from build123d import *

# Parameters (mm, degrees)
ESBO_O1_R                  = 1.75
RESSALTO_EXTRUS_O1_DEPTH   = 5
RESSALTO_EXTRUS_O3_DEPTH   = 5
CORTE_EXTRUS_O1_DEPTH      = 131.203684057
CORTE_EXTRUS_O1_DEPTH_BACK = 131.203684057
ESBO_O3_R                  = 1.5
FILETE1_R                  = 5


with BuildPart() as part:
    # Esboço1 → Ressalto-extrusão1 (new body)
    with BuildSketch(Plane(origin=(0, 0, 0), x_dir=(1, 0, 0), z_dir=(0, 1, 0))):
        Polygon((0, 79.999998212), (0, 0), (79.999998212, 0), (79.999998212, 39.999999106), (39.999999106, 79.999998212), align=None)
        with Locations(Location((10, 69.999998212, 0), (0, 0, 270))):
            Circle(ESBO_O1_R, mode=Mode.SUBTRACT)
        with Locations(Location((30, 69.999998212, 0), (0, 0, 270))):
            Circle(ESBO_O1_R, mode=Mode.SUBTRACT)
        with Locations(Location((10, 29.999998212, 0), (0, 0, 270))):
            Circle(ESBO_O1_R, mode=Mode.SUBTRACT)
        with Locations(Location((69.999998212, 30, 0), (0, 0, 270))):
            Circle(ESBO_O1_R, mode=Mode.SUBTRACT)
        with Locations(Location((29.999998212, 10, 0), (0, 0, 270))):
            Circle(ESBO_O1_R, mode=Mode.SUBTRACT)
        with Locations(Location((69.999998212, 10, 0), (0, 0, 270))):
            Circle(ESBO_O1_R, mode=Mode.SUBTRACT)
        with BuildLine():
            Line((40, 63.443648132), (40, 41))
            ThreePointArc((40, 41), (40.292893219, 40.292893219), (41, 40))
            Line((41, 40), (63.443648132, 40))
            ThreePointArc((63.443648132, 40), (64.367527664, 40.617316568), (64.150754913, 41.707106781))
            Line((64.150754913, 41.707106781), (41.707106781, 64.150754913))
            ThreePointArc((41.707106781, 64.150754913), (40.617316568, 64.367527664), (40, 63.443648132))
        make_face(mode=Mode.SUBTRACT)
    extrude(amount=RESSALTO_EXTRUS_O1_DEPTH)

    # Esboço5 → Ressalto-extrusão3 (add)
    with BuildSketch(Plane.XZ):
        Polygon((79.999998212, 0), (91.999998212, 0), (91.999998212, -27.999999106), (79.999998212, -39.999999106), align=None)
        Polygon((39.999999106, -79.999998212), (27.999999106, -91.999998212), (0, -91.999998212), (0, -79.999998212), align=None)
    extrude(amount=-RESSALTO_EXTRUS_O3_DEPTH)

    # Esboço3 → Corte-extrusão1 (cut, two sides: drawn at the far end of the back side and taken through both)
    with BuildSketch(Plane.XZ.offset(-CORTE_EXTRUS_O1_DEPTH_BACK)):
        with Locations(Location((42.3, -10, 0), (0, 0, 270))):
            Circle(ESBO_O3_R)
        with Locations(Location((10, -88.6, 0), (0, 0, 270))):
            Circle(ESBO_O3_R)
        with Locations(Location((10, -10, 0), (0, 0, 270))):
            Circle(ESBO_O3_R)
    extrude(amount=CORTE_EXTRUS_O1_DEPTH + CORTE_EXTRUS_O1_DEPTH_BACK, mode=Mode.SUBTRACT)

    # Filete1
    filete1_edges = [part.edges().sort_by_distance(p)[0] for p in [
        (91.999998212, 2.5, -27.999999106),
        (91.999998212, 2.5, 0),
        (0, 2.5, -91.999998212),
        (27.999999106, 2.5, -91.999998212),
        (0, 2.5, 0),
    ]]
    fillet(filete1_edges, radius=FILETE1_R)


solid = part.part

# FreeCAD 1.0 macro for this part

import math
import FreeCAD as App
import Part
import Sketcher

V = App.Vector


def edges_at(feature, points):
    """Names of the edges that pass closest to the given points."""
    edges = feature.Shape.Edges
    near = lambda p: min(range(len(edges)), key=lambda i: edges[i].distToShape(Part.Vertex(*p))[0])
    return sorted({f"Edge{near(p) + 1}" for p in points})


def add_polygon(sketch, points):
    """Adds a closed chain of lines whose ends are joined by coincident constraints."""
    first, n = sketch.GeometryCount, len(points)
    for a, b in zip(points, points[1:] + points[:1]):
        sketch.addGeometry(Part.LineSegment(App.Vector(*a, 0), App.Vector(*b, 0)), False)
    for i in range(n):
        sketch.addConstraint(Sketcher.Constraint("Coincident", first + i, 2, first + (i + 1) % n, 1))

doc = App.newDocument("Part")
params = doc.addObject("Spreadsheet::Sheet", "Params")
for row, (alias, value) in enumerate([
    ("sketch1_radius", "1 mm"),
    ("sketch1_diameter", "3.5 mm"),
    ("sketch1_width", "79.999998 mm"),
    ("sketch1_width2", "39.999999 mm"),
    ("pad1_length", "5 mm"),
    ("sketch2_width", "12 mm"),
    ("sketch2_width2", "39.999999 mm"),
    ("pad2_length", "5 mm"),
    ("sketch3_diameter", "3 mm"),
    ("fillet_radius", "5 mm"),
], start=1):
    params.set(f"A{row}", alias)
    params.set(f"B{row}", "=" + value)
    params.setAlias(f"B{row}", alias)

body = doc.addObject("PartDesign::Body", "Body")

# Sketch on XZ plane
sketch1 = doc.addObject("Sketcher::SketchObject", "Sketch")
body.addObject(sketch1)
sketch1.AttachmentSupport = (doc.XZ_Plane, [""])
sketch1.MapMode = "FlatFace"
add_polygon(sketch1, [(0, -80), (0, 0), (80, 0), (80, -40), (40, -80)])  # lines 0-4
sketch1.addGeometry(Part.Circle(V(30, -10, 0), V(0, 0, 1), 1.8), False)  # 5
sketch1.addGeometry(Part.Circle(V(10, -30, 0), V(0, 0, 1), 1.8), False)  # 6
sketch1.addGeometry(Part.Circle(V(70, -10, 0), V(0, 0, 1), 1.8), False)  # 7
sketch1.addGeometry(Part.Circle(V(70, -30, 0), V(0, 0, 1), 1.8), False)  # 8
sketch1.addGeometry(Part.Circle(V(10, -70, 0), V(0, 0, 1), 1.8), False)  # 9
sketch1.addGeometry(Part.Circle(V(30, -70, 0), V(0, 0, 1), 1.8), False)  # 10
sketch1.addGeometry(Part.LineSegment(V(40, -41, 0), V(40, -63.4, 0)), False)  # 11
sketch1.addGeometry(Part.ArcOfCircle(Part.Circle(V(41, -63.4, 0), V(0, 0, 1), 1), math.radians(-180), math.radians(-45)), False)  # 12
sketch1.addGeometry(Part.LineSegment(V(41.7, -64.2, 0), V(64.2, -41.7, 0)), False)  # 13
sketch1.addGeometry(Part.ArcOfCircle(Part.Circle(V(63.4, -41, 0), V(0, 0, 1), 1), math.radians(-45), math.radians(90)), False)  # 14
sketch1.addGeometry(Part.LineSegment(V(63.4, -40, 0), V(41, -40, 0)), False)  # 15
sketch1.addGeometry(Part.ArcOfCircle(Part.Circle(V(41, -41, 0), V(0, 0, 1), 1), math.radians(90), math.radians(180)), False)  # 16
sketch1.addConstraint([
    Sketcher.Constraint("Tangent", 11, 2, 12, 1),
    Sketcher.Constraint("Tangent", 12, 2, 13, 1),
    Sketcher.Constraint("Tangent", 13, 2, 14, 1),
    Sketcher.Constraint("Tangent", 14, 2, 15, 1),
    Sketcher.Constraint("Tangent", 15, 2, 16, 1),
    Sketcher.Constraint("Tangent", 16, 2, 11, 1),
    Sketcher.Constraint("Vertical", 0),
    Sketcher.Constraint("Horizontal", 1),
    Sketcher.Constraint("Vertical", 2),
    Sketcher.Constraint("Horizontal", 4),
    Sketcher.Constraint("Vertical", 11),
    Sketcher.Constraint("Horizontal", 15),
    Sketcher.Constraint("Coincident", 0, 2, -1, 1),
    Sketcher.Constraint("Equal", 5, 6),
    Sketcher.Constraint("Equal", 6, 7),
    Sketcher.Constraint("Equal", 7, 8),
    Sketcher.Constraint("Equal", 8, 9),
    Sketcher.Constraint("Equal", 9, 10),
    Sketcher.Constraint("Equal", 12, 14),
    Sketcher.Constraint("Equal", 14, 16),
    Sketcher.Constraint("Parallel", 3, 13),
    Sketcher.Constraint("Horizontal", 5, 3, 7, 3),
    Sketcher.Constraint("Horizontal", 6, 3, 8, 3),
    Sketcher.Constraint("Horizontal", 9, 3, 10, 3),
    Sketcher.Constraint("Horizontal", 2, 2, 14, 2),
    Sketcher.Constraint("Vertical", 7, 3, 8, 3),
    Sketcher.Constraint("Vertical", 6, 3, 9, 3),
    Sketcher.Constraint("Vertical", 5, 3, 10, 3),
    Sketcher.Constraint("Vertical", 3, 2, 11, 2),
    Sketcher.Constraint("Equal", 1, 0),
    Sketcher.Constraint("Equal", 4, 2),
    Sketcher.Constraint("Radius", 12, 1.0),
    Sketcher.Constraint("Diameter", 5, 3.5),
    Sketcher.Constraint("DistanceX", 1, 1, 1, 2, 79.999998),
    Sketcher.Constraint("DistanceX", 4, 2, 4, 1, 39.999999),
    Sketcher.Constraint("DistanceX", -1, 1, 5, 3, 29.999998),
    Sketcher.Constraint("DistanceY", 5, 3, -1, 1, 10.0),
    Sketcher.Constraint("DistanceX", -1, 1, 6, 3, 10.0),
    Sketcher.Constraint("DistanceY", 6, 3, -1, 1, 29.999998),
    Sketcher.Constraint("DistanceX", -1, 1, 7, 3, 69.999998),
    Sketcher.Constraint("DistanceY", 9, 3, -1, 1, 69.999998),
    Sketcher.Constraint("DistanceX", 15, 2, 15, 1, 22.443648),
])
sketch1.setExpression("Constraints[36]", "Params.sketch1_radius")
sketch1.setExpression("Constraints[37]", "Params.sketch1_diameter")
sketch1.setExpression("Constraints[38]", "Params.sketch1_width")
sketch1.setExpression("Constraints[39]", "Params.sketch1_width2")
pad1 = doc.addObject("PartDesign::Pad", "Pad")
body.addObject(pad1)
pad1.Profile = sketch1
pad1.setExpression("Length", "Params.pad1_length")
pad1.Reversed = True

# Sketch on XZ plane
sketch2 = doc.addObject("Sketcher::SketchObject", "Sketch001")
body.addObject(sketch2)
sketch2.AttachmentSupport = (doc.XZ_Plane, [""])
sketch2.MapMode = "FlatFace"
add_polygon(sketch2, [(92, 0), (80, 0), (80, -40), (92, -28)])  # lines 0-3
add_polygon(sketch2, [(28, -92), (40, -80), (0, -80), (0, -92)])  # lines 4-7
sketch2.addConstraint([
    Sketcher.Constraint("Horizontal", 0),
    Sketcher.Constraint("Vertical", 1),
    Sketcher.Constraint("Vertical", 3),
    Sketcher.Constraint("Horizontal", 5),
    Sketcher.Constraint("Vertical", 6),
    Sketcher.Constraint("Horizontal", 7),
    Sketcher.Constraint("PointOnObject", 0, 2, -1),
    Sketcher.Constraint("PointOnObject", 5, 2, -2),
    Sketcher.Constraint("Parallel", 2, 4),
    Sketcher.Constraint("Equal", 5, 1),
    Sketcher.Constraint("Equal", 7, 3),
    Sketcher.Constraint("Equal", 0, 6),
    Sketcher.Constraint("DistanceX", 0, 2, 0, 1, 12.0),
    Sketcher.Constraint("DistanceX", 5, 2, 5, 1, 39.999999),
    Sketcher.Constraint("DistanceX", -1, 1, 0, 2, 79.999998),
    Sketcher.Constraint("DistanceY", 4, 2, -1, 1, 79.999998),
])
sketch2.setExpression("Constraints[20]", "Params.sketch2_width")
sketch2.setExpression("Constraints[21]", "Params.sketch2_width2")
pad2 = doc.addObject("PartDesign::Pad", "Pad001")
body.addObject(pad2)
pad2.Profile = sketch2
pad2.setExpression("Length", "Params.pad2_length")
pad2.Reversed = True

# Sketch on XZ plane
sketch3 = doc.addObject("Sketcher::SketchObject", "Sketch002")
body.addObject(sketch3)
sketch3.AttachmentSupport = (doc.XZ_Plane, [""])
sketch3.MapMode = "FlatFace"
sketch3.addGeometry([
    Part.Circle(V(42.3, -10, 0), V(0, 0, 1), 1.5),
    Part.Circle(V(10, -88.6, 0), V(0, 0, 1), 1.5),
    Part.Circle(V(10, -10, 0), V(0, 0, 1), 1.5),
], False)
sketch3.addConstraint([
    Sketcher.Constraint("Equal", 0, 1),
    Sketcher.Constraint("Equal", 1, 2),
    Sketcher.Constraint("Horizontal", 0, 3, 2, 3),
    Sketcher.Constraint("Vertical", 1, 3, 2, 3),
    Sketcher.Constraint("Diameter", 0, 3.0),
    Sketcher.Constraint("DistanceY", 0, 3, -1, 1, 10.0),
    Sketcher.Constraint("DistanceX", -1, 1, 1, 3, 10.0),
    Sketcher.Constraint("DistanceX", -1, 1, 0, 3, 42.3),
    Sketcher.Constraint("DistanceY", 1, 3, -1, 1, 88.6),
])
sketch3.setExpression("Constraints[4]", "Params.sketch3_diameter")
pocket1 = doc.addObject("PartDesign::Pocket", "Pocket")
body.addObject(pocket1)
pocket1.Profile = sketch3
pocket1.Type = "ThroughAll"
pocket1.Midplane = True
doc.recompute()

fillet = doc.addObject("PartDesign::Fillet", "Fillet")
body.addObject(fillet)
fillet.Base = (pocket1, edges_at(pocket1, [
    (92, 2.5, -28),
    (92, 2.5, 0),
    (0, 2.5, -92),
    (28, 2.5, -92),
    (0, 2.5, 0),
]))
fillet.setExpression("Radius", "Params.fillet_radius")

doc.recompute()
